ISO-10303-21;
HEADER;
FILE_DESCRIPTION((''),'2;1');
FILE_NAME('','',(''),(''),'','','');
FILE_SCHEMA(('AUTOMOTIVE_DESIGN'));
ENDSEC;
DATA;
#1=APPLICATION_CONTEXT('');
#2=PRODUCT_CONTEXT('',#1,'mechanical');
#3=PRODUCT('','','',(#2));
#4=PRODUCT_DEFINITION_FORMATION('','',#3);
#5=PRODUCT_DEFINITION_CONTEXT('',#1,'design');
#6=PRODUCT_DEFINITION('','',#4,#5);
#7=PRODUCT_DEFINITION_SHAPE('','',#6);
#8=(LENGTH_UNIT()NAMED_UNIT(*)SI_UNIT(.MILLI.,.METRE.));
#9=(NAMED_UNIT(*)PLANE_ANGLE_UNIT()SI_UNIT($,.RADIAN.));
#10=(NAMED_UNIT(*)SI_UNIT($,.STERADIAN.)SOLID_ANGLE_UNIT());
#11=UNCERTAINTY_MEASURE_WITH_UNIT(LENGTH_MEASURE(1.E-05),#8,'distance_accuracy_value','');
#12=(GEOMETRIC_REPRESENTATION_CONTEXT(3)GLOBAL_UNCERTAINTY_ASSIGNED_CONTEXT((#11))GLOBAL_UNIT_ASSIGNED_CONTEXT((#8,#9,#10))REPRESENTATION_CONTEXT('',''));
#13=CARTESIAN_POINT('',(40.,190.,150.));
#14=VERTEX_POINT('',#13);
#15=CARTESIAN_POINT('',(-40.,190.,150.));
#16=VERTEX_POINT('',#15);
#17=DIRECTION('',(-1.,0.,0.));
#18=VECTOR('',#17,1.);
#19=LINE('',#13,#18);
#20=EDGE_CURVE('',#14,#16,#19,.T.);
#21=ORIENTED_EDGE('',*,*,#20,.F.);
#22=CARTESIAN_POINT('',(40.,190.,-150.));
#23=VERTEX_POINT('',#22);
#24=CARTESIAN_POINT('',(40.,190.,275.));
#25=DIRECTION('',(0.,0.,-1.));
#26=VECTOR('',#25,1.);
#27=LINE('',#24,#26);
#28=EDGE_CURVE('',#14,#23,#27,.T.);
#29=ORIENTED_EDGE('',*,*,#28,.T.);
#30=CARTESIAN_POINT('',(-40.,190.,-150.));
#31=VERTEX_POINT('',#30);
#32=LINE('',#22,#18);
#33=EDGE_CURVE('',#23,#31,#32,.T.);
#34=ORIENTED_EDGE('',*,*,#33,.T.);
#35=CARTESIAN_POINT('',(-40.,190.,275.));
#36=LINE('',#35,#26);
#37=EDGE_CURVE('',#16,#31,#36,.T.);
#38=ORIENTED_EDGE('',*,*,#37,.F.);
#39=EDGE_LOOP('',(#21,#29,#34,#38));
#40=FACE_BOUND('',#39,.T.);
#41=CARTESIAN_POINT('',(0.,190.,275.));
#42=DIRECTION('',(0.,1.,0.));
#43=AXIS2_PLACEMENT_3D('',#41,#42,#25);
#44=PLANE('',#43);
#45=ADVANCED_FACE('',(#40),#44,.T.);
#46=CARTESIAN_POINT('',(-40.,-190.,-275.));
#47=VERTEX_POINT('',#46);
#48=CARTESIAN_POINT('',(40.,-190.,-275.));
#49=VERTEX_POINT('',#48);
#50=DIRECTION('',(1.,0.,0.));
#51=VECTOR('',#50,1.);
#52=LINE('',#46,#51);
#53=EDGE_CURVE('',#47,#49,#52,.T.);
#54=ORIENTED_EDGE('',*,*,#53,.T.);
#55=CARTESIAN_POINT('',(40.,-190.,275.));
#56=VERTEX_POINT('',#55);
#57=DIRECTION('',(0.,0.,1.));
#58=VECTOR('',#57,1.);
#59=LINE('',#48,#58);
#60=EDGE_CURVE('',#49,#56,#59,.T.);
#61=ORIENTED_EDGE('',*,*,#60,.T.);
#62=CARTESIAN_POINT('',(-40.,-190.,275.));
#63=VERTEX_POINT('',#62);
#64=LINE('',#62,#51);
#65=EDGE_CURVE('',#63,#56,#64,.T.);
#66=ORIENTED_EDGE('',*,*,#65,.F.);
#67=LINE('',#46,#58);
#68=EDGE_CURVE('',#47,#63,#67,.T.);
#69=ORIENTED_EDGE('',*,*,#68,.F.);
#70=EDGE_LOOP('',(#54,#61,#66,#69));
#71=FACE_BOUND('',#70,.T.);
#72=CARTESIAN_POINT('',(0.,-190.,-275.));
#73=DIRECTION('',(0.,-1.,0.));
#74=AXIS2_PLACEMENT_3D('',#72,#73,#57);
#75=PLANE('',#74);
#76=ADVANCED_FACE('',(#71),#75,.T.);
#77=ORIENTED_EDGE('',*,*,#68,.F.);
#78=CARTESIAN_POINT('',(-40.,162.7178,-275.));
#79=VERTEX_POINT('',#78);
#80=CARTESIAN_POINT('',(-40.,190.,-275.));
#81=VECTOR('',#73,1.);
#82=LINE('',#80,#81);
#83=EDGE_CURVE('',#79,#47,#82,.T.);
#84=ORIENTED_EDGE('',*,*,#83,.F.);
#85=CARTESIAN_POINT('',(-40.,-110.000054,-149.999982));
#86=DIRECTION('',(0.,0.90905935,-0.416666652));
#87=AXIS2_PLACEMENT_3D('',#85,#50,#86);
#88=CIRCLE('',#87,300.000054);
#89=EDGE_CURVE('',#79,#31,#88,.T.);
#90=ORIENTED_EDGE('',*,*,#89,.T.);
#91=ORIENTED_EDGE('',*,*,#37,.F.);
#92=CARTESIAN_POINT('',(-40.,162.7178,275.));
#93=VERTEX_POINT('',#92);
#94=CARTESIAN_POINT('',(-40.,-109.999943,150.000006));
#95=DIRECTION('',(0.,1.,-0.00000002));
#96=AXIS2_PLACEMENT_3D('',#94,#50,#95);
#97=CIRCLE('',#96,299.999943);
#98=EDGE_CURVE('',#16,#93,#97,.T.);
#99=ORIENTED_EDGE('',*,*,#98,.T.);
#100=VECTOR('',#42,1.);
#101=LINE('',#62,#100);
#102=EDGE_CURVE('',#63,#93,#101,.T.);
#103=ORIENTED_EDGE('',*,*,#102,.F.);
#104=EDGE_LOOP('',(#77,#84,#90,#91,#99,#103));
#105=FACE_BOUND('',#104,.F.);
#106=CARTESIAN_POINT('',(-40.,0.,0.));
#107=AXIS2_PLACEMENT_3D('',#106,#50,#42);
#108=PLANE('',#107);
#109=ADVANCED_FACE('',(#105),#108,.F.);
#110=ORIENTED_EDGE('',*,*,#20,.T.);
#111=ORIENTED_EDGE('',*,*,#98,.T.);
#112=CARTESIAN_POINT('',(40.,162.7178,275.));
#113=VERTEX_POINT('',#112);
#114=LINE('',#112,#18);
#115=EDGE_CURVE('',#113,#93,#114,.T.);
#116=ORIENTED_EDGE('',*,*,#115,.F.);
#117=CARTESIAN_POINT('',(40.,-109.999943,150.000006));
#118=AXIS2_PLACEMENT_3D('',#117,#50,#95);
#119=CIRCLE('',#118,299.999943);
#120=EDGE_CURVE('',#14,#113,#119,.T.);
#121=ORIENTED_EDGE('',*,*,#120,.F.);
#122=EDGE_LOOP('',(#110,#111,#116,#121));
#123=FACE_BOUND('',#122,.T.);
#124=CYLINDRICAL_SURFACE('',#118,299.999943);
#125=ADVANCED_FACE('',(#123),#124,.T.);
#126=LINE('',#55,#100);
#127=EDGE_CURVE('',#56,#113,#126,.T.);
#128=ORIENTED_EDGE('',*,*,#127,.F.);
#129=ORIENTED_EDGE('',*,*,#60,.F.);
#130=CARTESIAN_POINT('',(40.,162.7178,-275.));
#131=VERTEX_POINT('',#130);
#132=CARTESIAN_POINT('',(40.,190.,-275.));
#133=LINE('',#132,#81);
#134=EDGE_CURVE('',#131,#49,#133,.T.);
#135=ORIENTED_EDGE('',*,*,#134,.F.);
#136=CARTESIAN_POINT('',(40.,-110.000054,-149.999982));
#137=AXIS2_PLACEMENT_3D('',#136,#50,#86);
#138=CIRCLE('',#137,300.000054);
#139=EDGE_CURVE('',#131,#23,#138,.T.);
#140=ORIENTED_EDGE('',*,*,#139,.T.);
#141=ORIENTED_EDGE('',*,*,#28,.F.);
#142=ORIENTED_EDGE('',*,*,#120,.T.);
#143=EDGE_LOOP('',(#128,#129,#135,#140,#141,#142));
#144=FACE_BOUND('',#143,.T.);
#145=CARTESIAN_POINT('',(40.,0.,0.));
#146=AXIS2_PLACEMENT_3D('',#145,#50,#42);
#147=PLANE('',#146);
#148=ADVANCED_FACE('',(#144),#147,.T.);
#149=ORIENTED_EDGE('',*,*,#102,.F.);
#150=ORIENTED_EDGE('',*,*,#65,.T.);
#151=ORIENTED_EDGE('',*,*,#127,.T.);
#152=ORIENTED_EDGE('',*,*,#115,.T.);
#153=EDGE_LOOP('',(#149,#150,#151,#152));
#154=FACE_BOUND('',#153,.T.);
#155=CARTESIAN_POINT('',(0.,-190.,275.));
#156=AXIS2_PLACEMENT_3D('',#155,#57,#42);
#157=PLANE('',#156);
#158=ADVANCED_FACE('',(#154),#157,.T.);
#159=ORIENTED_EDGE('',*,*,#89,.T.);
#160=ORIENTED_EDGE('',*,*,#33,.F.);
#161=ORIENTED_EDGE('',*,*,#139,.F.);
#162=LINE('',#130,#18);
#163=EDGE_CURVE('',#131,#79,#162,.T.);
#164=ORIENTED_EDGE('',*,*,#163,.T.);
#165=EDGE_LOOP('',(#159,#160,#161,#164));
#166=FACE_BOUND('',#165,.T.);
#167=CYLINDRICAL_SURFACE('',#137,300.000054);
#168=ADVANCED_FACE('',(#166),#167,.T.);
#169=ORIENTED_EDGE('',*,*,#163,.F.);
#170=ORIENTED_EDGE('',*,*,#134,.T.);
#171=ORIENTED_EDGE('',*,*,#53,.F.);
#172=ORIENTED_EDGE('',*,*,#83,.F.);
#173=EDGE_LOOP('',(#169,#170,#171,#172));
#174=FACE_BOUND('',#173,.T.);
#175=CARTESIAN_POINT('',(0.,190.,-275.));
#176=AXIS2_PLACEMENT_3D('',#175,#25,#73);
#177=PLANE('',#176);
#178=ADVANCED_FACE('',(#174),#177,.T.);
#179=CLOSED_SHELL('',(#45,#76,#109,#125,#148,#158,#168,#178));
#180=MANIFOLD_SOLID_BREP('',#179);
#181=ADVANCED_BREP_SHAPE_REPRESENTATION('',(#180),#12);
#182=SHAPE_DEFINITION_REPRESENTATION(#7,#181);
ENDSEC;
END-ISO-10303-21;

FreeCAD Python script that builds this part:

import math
import FreeCAD as App
import Part
import Sketcher
from FreeCAD import Vector

doc = App.newDocument("Part")
body = doc.addObject("PartDesign::Body", "Body")

# Sketch on YZ plane
sketch1 = body.newObject("Sketcher::SketchObject", "Sketch")
sketch1.AttachmentSupport = (doc.getObject("YZ_Plane"), [""])
sketch1.MapMode = "FlatFace"
sketch1.addGeometry([
    Part.LineSegment(Vector(190, 275, 0), Vector(-190, 275, 0)),
    Part.LineSegment(Vector(-190, 275, 0), Vector(-190, -275, 0)),
    Part.LineSegment(Vector(-190, -275, 0), Vector(190, -275, 0)),
    Part.LineSegment(Vector(190, -275, 0), Vector(190, 275, 0)),
], False)
sketch1.addConstraint([
    Sketcher.Constraint("Coincident", 0, 2, 1, 1),
    Sketcher.Constraint("Coincident", 1, 2, 2, 1),
    Sketcher.Constraint("Coincident", 2, 2, 3, 1),
    Sketcher.Constraint("Coincident", 3, 2, 0, 1),
    Sketcher.Constraint("Horizontal", 0),
    Sketcher.Constraint("Vertical", 1),
    Sketcher.Constraint("Horizontal", 2),
    Sketcher.Constraint("Vertical", 3),
    Sketcher.Constraint("Symmetric", 0, 2, 2, 2, -1, 1),
    Sketcher.Constraint("DistanceX", 0, 2, 0, 1, 380.0),
    Sketcher.Constraint("DistanceY", 1, 2, 1, 1, 550.0),
])
pad1 = body.newObject("PartDesign::Pad", "Pad")
pad1.Profile = sketch1
pad1.Length = 80
pad1.Midplane = True

# Sketch on YZ plane
sketch2 = body.newObject("Sketcher::SketchObject", "Sketch001")
sketch2.AttachmentSupport = (doc.getObject("YZ_Plane"), [""])
sketch2.MapMode = "FlatFace"
sketch2.AttachmentOffset = App.Placement(Vector(0, 0, 40), App.Rotation())
sketch2.addGeometry([
    Part.ArcOfCircle(Part.Circle(Vector(-110, -150, 0), Vector(0, 0, 1), 300), math.radians(-25), math.radians(0)),  # 0
    Part.LineSegment(Vector(163, -275, 0), Vector(190, -275, 0)),  # 1
    Part.LineSegment(Vector(190, -275, 0), Vector(190, -150, 0)),  # 2
    Part.LineSegment(Vector(190, 275, 0), Vector(163, 275, 0)),  # 3
    Part.ArcOfCircle(Part.Circle(Vector(-110, 150, 0), Vector(0, 0, 1), 300), math.radians(0), math.radians(25)),  # 4
    Part.LineSegment(Vector(190, 150, 0), Vector(190, 275, 0)),  # 5
], False)
sketch2.addConstraint([
    Sketcher.Constraint("Coincident", 0, 1, 1, 1),
    Sketcher.Constraint("Coincident", 1, 2, 2, 1),
    Sketcher.Constraint("Tangent", 2, 2, 0, 2),
    Sketcher.Constraint("Coincident", 3, 2, 4, 2),
    Sketcher.Constraint("Tangent", 4, 1, 5, 1),
    Sketcher.Constraint("Coincident", 5, 2, 3, 1),
    Sketcher.Constraint("Horizontal", 1),
    Sketcher.Constraint("Vertical", 2),
    Sketcher.Constraint("Horizontal", 3),
    Sketcher.Constraint("Vertical", 5),
    Sketcher.Constraint("Equal", 0, 4),
    Sketcher.Constraint("Symmetric", 0, 3, 4, 3, -1),
    Sketcher.Constraint("Vertical", 0, 1, 3, 2),
    Sketcher.Constraint("Radius", 0, 300.0),
    Sketcher.Constraint("DistanceY", 0, 3, 4, 3, 300.0),
    Sketcher.Constraint("DistanceY", 2, 1, 2, 2, 125.0),
    Sketcher.Constraint("DistanceX", 0, 3, -1, 1, 110.0),
])
pocket1 = body.newObject("PartDesign::Pocket", "Pocket")
pocket1.Profile = sketch2
pocket1.Type = "ThroughAll"

doc.recompute()
